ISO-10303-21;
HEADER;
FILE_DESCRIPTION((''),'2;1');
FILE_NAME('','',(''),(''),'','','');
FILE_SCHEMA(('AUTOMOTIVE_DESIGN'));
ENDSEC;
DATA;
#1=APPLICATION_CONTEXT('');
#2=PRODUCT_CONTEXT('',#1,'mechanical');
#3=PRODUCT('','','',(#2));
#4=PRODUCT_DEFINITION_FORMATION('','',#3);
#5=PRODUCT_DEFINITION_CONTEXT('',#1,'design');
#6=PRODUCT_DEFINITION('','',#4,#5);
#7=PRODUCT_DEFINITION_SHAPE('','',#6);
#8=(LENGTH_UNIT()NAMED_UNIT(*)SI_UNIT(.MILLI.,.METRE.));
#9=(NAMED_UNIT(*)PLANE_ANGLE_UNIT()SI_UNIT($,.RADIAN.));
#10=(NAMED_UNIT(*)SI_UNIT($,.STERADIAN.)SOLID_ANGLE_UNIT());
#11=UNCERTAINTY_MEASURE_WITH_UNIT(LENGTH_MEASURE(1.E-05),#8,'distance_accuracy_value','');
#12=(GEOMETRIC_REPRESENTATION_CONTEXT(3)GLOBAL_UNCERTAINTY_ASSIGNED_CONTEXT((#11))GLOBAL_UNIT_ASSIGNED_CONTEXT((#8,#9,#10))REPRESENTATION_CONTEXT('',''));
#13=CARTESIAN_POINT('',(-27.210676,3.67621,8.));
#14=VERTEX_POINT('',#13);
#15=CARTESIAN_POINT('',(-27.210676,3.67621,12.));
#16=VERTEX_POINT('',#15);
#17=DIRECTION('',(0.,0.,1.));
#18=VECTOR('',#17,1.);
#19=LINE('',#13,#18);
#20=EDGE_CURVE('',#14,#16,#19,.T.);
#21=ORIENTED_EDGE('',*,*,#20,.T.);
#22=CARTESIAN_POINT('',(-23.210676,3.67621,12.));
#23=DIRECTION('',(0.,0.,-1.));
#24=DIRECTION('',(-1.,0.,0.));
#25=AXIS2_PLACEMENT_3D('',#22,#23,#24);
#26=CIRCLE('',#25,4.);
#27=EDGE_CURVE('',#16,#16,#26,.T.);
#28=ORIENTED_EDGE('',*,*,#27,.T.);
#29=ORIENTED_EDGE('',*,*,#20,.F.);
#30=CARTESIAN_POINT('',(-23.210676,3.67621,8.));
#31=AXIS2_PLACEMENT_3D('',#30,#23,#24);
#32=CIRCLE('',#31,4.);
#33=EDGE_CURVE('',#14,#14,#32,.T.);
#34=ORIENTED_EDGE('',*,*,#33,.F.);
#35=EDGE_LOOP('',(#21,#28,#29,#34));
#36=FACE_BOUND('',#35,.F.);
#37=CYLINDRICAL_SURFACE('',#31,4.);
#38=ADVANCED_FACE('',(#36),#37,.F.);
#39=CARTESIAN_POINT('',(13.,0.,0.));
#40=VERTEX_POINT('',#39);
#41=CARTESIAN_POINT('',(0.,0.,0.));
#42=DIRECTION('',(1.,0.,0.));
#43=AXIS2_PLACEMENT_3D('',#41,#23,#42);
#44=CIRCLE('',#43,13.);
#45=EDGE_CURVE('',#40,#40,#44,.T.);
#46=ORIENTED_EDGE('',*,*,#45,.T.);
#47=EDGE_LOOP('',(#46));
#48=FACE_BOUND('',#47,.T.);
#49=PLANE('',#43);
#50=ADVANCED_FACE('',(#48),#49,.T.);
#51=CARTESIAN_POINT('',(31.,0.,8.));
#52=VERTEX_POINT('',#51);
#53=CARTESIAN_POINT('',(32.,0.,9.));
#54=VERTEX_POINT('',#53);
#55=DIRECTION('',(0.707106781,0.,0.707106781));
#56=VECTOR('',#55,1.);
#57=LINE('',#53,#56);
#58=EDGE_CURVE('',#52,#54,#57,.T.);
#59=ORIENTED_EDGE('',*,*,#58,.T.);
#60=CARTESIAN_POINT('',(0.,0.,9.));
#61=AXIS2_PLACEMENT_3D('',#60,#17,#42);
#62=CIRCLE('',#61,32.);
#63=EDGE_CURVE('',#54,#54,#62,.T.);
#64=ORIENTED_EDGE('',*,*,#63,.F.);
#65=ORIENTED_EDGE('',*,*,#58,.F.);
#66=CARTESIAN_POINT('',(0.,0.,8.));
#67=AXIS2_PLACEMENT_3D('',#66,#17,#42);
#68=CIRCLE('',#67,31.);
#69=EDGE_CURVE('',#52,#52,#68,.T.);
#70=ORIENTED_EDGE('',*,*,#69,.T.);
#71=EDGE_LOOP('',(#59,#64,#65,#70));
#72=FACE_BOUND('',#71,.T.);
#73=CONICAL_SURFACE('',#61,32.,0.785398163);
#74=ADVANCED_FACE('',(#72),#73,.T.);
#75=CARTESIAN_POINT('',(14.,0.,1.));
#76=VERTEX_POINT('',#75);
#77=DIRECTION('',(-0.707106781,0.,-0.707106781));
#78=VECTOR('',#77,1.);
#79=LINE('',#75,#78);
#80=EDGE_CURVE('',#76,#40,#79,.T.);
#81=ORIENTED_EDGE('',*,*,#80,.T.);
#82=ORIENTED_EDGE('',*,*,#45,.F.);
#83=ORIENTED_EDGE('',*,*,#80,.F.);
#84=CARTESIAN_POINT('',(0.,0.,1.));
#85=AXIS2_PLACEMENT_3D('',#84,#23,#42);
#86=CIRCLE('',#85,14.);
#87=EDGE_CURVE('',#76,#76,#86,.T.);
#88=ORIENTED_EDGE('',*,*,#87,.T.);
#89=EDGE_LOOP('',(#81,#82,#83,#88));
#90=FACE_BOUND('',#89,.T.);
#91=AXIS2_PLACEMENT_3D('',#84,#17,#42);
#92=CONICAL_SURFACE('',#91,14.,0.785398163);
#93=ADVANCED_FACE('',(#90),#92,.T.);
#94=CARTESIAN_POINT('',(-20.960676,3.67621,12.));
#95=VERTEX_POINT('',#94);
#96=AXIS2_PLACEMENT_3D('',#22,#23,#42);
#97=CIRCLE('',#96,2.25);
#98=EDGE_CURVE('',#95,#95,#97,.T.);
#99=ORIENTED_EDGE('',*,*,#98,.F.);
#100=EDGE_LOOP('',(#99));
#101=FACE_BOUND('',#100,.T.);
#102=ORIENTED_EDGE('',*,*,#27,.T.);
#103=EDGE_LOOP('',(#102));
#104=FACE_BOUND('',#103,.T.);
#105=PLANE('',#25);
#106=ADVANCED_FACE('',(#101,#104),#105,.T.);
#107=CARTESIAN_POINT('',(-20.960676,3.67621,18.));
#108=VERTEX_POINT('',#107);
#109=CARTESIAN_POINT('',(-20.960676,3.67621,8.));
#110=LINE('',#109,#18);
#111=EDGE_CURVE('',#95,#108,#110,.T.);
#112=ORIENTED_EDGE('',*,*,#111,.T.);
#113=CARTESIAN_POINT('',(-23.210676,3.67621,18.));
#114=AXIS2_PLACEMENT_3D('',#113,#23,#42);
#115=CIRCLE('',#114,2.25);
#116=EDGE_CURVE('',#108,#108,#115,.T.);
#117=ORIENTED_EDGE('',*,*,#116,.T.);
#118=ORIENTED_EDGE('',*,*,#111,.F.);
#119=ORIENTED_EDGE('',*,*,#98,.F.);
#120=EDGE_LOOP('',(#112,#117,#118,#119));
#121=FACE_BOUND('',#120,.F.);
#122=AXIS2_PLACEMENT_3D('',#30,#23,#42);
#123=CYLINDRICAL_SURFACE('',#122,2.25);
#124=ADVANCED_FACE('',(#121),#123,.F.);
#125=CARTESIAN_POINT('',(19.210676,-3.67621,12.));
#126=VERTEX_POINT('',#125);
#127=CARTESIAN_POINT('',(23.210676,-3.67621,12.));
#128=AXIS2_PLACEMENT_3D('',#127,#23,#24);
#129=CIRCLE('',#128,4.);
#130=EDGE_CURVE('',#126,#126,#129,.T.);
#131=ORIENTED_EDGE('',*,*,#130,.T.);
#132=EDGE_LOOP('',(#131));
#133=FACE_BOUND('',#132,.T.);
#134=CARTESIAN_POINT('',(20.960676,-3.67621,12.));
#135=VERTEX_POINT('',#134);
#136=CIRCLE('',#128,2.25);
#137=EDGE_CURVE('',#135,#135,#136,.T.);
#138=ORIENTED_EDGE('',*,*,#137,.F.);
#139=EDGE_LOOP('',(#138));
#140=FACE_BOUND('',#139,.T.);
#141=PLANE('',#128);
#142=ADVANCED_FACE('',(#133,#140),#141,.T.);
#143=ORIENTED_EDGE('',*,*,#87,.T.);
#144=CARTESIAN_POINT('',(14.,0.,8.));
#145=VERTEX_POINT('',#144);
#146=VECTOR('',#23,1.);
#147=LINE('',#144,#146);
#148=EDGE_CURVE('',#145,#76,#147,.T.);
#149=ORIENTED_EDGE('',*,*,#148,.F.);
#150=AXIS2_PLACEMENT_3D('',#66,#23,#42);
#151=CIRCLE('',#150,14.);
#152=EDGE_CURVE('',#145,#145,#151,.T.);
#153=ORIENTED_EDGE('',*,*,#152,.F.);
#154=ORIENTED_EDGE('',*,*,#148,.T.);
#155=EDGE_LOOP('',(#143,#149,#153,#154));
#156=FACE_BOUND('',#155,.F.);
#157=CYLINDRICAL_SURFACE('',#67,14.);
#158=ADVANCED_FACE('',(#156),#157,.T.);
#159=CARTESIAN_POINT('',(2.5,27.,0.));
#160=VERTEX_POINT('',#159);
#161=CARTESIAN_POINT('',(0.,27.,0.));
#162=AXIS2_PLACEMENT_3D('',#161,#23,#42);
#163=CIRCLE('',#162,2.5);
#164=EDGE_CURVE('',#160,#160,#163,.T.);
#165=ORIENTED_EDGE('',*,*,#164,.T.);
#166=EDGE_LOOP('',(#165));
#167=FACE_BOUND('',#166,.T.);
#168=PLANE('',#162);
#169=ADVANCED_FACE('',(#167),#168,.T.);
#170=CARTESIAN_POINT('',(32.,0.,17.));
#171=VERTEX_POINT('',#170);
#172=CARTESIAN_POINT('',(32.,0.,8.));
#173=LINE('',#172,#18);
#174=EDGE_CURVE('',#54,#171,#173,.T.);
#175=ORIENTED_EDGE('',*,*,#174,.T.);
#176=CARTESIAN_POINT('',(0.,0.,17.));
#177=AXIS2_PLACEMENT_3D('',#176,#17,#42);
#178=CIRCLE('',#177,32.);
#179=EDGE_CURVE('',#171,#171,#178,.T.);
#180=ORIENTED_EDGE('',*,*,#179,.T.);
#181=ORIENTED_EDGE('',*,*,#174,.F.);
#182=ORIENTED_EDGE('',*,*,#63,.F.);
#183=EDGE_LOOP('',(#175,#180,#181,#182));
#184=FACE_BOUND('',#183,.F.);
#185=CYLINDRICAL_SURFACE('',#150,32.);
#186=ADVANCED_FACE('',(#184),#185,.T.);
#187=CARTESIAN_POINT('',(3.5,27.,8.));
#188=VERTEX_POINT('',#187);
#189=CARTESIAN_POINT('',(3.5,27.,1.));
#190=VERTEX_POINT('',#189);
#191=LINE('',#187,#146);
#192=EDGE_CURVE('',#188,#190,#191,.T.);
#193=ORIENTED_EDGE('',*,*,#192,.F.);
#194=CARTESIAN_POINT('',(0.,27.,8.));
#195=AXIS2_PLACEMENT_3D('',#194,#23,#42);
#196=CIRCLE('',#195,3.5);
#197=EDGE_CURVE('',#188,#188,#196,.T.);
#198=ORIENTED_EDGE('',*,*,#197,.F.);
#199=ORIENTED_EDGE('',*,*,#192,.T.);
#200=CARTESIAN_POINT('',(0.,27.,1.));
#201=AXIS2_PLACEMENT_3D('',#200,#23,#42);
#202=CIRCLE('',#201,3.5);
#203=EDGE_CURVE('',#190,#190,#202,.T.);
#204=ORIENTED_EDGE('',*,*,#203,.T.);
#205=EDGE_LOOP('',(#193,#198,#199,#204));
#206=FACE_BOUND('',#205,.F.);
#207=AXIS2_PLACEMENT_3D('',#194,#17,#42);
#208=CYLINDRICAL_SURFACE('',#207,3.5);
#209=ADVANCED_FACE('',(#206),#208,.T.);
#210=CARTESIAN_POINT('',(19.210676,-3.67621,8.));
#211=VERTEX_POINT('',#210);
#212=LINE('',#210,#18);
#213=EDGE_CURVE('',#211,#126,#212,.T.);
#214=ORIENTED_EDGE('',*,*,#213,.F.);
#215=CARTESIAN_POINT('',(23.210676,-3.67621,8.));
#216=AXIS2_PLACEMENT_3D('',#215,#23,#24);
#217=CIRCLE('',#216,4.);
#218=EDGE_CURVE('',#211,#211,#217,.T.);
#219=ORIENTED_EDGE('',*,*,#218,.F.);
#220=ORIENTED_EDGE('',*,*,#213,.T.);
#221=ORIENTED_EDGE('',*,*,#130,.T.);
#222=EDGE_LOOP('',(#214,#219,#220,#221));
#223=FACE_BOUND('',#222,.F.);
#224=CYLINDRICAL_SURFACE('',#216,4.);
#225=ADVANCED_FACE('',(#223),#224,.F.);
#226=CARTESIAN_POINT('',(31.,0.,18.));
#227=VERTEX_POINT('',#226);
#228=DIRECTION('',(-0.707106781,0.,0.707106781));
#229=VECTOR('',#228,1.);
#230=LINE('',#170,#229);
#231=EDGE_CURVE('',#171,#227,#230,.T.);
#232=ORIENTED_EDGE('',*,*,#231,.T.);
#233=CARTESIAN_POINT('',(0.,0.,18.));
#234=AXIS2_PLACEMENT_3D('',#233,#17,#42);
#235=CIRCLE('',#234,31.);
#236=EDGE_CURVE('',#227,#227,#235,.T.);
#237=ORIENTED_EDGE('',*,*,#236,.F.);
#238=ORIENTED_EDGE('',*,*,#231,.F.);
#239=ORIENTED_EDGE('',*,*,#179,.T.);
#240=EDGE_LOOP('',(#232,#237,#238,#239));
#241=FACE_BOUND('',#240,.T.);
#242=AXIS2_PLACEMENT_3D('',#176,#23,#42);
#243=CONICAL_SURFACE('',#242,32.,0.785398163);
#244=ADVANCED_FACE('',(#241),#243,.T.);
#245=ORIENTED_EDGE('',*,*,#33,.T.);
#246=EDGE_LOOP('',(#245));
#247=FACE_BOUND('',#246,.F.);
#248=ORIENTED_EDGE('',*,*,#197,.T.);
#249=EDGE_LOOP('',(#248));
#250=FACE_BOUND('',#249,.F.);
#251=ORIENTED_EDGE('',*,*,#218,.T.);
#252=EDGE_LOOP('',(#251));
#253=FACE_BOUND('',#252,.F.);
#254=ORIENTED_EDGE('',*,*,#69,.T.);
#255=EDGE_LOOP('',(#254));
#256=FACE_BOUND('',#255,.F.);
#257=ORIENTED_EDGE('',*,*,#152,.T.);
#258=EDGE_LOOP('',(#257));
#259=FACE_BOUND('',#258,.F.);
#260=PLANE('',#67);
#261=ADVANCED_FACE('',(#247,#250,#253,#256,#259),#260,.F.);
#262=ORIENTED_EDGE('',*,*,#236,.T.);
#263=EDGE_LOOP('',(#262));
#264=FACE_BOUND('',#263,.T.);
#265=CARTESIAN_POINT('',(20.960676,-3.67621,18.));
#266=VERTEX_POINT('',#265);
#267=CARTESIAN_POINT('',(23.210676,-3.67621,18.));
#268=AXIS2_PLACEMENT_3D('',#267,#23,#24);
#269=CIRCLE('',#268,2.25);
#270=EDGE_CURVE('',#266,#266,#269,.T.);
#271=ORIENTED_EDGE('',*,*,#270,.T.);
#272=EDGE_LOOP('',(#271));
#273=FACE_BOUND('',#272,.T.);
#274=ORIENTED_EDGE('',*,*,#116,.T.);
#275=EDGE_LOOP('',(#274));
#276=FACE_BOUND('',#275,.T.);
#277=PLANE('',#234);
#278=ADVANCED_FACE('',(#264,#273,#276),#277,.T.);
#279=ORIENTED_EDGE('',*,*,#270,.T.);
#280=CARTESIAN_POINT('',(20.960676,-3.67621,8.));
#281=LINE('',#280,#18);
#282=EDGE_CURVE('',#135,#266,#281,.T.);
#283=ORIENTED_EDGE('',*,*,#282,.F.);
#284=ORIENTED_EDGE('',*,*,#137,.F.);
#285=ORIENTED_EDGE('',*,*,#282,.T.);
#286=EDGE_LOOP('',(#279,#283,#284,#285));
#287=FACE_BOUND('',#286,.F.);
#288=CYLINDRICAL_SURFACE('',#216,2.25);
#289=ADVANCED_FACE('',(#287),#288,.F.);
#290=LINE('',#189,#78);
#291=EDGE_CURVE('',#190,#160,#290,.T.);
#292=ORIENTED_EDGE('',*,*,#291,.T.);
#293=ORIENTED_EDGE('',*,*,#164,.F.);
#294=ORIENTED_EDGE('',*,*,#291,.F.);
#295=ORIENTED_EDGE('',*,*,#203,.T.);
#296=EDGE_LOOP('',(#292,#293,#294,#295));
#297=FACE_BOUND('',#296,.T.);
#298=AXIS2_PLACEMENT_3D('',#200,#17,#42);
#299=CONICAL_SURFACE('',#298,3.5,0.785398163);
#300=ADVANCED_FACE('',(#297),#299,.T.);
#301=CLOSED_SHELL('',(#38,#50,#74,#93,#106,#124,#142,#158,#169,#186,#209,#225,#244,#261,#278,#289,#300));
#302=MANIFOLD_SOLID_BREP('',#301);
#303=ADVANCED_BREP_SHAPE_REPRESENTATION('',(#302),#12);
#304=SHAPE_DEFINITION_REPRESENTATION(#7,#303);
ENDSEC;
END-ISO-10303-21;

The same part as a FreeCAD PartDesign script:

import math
import FreeCAD as App
import Part
import Sketcher
from FreeCAD import Vector
Q = App.Units.Quantity


def edges_at(feature, points):
    """Names of the edges that pass closest to the given points."""
    edges = feature.Shape.Edges
    near = lambda p: min(range(len(edges)), key=lambda i: edges[i].distToShape(Part.Vertex(*p))[0])
    return sorted({f"Edge{near(p) + 1}" for p in points})


def add_polygon(sketch, points):
    """Adds a closed chain of lines whose ends are joined by coincident constraints."""
    first, n = sketch.GeometryCount, len(points)
    for a, b in zip(points, points[1:] + points[:1]):
        sketch.addGeometry(Part.LineSegment(App.Vector(*a, 0), App.Vector(*b, 0)), False)
    for i in range(n):
        sketch.addConstraint(Sketcher.Constraint("Coincident", first + i, 2, first + (i + 1) % n, 1))

doc = App.newDocument("Part")
body = doc.addObject("PartDesign::Body", "Body")

# Sketch on XY plane
sketch1 = body.newObject("Sketcher::SketchObject", "Sketch")
sketch1.AttachmentSupport = (doc.getObject("XY_Plane"), [""])
sketch1.MapMode = "FlatFace"
sketch1.addGeometry([
    Part.LineSegment(Vector(-7.564716, 29.602896, 0), Vector(-11.5, 18.165902, 0)),  # 0
    Part.ArcOfCircle(Part.Circle(Vector(0, 0, 0), Vector(0, 0, 1), 21.5), math.radians(122.336026), math.radians(177.663974)),  # 1
    Part.LineSegment(Vector(-21.482133, 0.876341, 0), Vector(-29.419218, -8.250211, 0)),  # 2
    Part.ArcOfCircle(Part.Circle(Vector(-23.382686, -13.5, 0), Vector(0, 0, 1), 8), math.radians(138.987508), math.radians(281.012492)),  # 3
    Part.LineSegment(Vector(-21.854502, -21.352684, 0), Vector(-9.982133, -19.042243, 0)),  # 4
    Part.ArcOfCircle(Part.Circle(Vector(0, 0, 0), Vector(0, 0, 1), 21.5), math.radians(-117.663974), math.radians(-62.336026)),  # 5
    Part.LineSegment(Vector(9.982133, -19.042243, 0), Vector(21.854502, -21.352684, 0)),  # 6
    Part.ArcOfCircle(Part.Circle(Vector(23.382686, -13.5, 0), Vector(0, 0, 1), 8), math.radians(-101.012492), math.radians(41.012492)),  # 7
    Part.LineSegment(Vector(29.419218, -8.250211, 0), Vector(21.482133, 0.876341, 0)),  # 8
    Part.ArcOfCircle(Part.Circle(Vector(0, 0, 0), Vector(0, 0, 1), 21.5), math.radians(2.336026), math.radians(57.663974)),  # 9
    Part.LineSegment(Vector(11.5, 18.165902, 0), Vector(7.564716, 29.602896, 0)),  # 10
    Part.ArcOfCircle(Part.Circle(Vector(0, 27, 0), Vector(0, 0, 1), 8), math.radians(18.987508), math.radians(161.012492)),  # 11
    Part.Circle(Vector(23.382686, -13.5, 0), Vector(0, 0, 1), 3.5),  # 12
    Part.Circle(Vector(-23.382686, -13.5, 0), Vector(0, 0, 1), 3.5),  # 13
    Part.Circle(Vector(0, 27, 0), Vector(0, 0, 1), 3.5),  # 14
], False)
sketch1.addConstraint([
    Sketcher.Constraint("Coincident", 0, 2, 1, 1),
    Sketcher.Constraint("Coincident", 1, 2, 2, 1),
    Sketcher.Constraint("Tangent", 2, 2, 3, 1),
    Sketcher.Constraint("Tangent", 3, 2, 4, 1),
    Sketcher.Constraint("Coincident", 4, 2, 5, 1),
    Sketcher.Constraint("Coincident", 5, 2, 6, 1),
    Sketcher.Constraint("Tangent", 6, 2, 7, 1),
    Sketcher.Constraint("Tangent", 7, 2, 8, 1),
    Sketcher.Constraint("Coincident", 8, 2, 9, 1),
    Sketcher.Constraint("Coincident", 9, 2, 10, 1),
    Sketcher.Constraint("Tangent", 10, 2, 11, 1),
    Sketcher.Constraint("Tangent", 11, 2, 0, 1),
    Sketcher.Constraint("Coincident", 1, 3, -1, 1),
    Sketcher.Constraint("Coincident", 5, 3, -1, 1),
    Sketcher.Constraint("Coincident", 9, 3, -1, 1),
    Sketcher.Constraint("Coincident", 12, 3, 7, 3),
    Sketcher.Constraint("Coincident", 13, 3, 3, 3),
    Sketcher.Constraint("Coincident", 14, 3, 11, 3),
    Sketcher.Constraint("Equal", 1, 5),
    Sketcher.Constraint("Equal", 3, 7),
    Sketcher.Constraint("Equal", 5, 9),
    Sketcher.Constraint("Equal", 7, 11),
    Sketcher.Constraint("Equal", 12, 13),
    Sketcher.Constraint("Equal", 13, 14),
    Sketcher.Constraint("Symmetric", 3, 3, 7, 3, -2),
    Sketcher.Constraint("Symmetric", 10, 2, 11, 2, -2),
    Sketcher.Constraint("Horizontal", 4, 2, 5, 2),
    Sketcher.Constraint("Horizontal", 2, 2, 7, 2),
    Sketcher.Constraint("Equal", 0, 2),
    Sketcher.Constraint("Equal", 2, 4),
    Sketcher.Constraint("Diameter", 12, Q("7 mm")),
    Sketcher.Constraint("Radius", 3, Q("8 mm")),
    Sketcher.Constraint("Radius", 1, Q("21.5 mm")),
    Sketcher.Constraint("DistanceY", -1, 1, 11, 3, Q("27 mm")),
    Sketcher.Constraint("DistanceY", 3, 3, -1, 1, Q("13.5 mm")),
    Sketcher.Constraint("DistanceX", 0, 2, -1, 1, Q("11.5 mm")),
    Sketcher.Constraint("DistanceX", 3, 2, -1, 1, Q("21.854502 mm")),
])
pad1 = body.newObject("PartDesign::Pad", "Pad")
pad1.Profile = sketch1
pad1.Length = 5
doc.recompute()

fillet = body.newObject("PartDesign::Fillet", "Fillet")
fillet.Base = (pad1, edges_at(pad1, [
    (21.482, 0.876, 2.5),
    (9.982, -19.042, 2.5),
    (-9.982, -19.042, 2.5),
    (-21.482, 0.876, 2.5),
    (-11.5, 18.166, 2.5),
    (11.5, 18.166, 2.5),
]))
fillet.Radius = 10

# Sketch on XY plane
sketch2 = body.newObject("Sketcher::SketchObject", "Sketch001")
sketch2.AttachmentSupport = (doc.getObject("XY_Plane"), [""])
sketch2.MapMode = "FlatFace"
sketch2.AttachmentOffset = App.Placement(Vector(0, 0, 5), App.Rotation())
sketch2.addGeometry(Part.Circle(Vector(0, 0, 0), Vector(0, 0, 1), 18), False)
sketch2.addConstraint([
    Sketcher.Constraint("Coincident", 0, 3, -1, 1),
    Sketcher.Constraint("Diameter", 0, Q("36 mm")),
])
pad2 = body.newObject("PartDesign::Pad", "Pad001")
pad2.Profile = sketch2
pad2.Length = 3

# Sketch on XY plane
sketch3 = body.newObject("Sketcher::SketchObject", "Sketch002")
sketch3.AttachmentSupport = (doc.getObject("XY_Plane"), [""])
sketch3.MapMode = "FlatFace"
sketch3.AttachmentOffset = App.Placement(Vector(0, 0, 8), App.Rotation())
sketch3.addGeometry(Part.Circle(Vector(0, 0, 0), Vector(0, 0, 1), 14), False)
sketch3.addConstraint([
    Sketcher.Constraint("Coincident", 0, 3, -1, 1),
    Sketcher.Constraint("Diameter", 0, Q("28 mm")),
])
pocket1 = body.newObject("PartDesign::Pocket", "Pocket")
pocket1.Profile = sketch3
pocket1.Length = 32

# Sketch on XY plane
sketch4 = body.newObject("Sketcher::SketchObject", "Sketch003")
sketch4.AttachmentSupport = (doc.getObject("XY_Plane"), [""])
sketch4.MapMode = "FlatFace"
sketch4.addGeometry(Part.Circle(Vector(0, 0, 0), Vector(0, 0, 1), 16.75), False)
sketch4.addConstraint([
    Sketcher.Constraint("Coincident", 0, 3, -1, 1),
    Sketcher.Constraint("Diameter", 0, Q("33.5 mm")),
])
pocket2 = body.newObject("PartDesign::Pocket", "Pocket001")
pocket2.Profile = sketch4
pocket2.Length = 3
pocket2.Reversed = True
doc.recompute()

chamfer = body.newObject("PartDesign::Chamfer", "Chamfer")
chamfer.Base = (pocket2, edges_at(pocket2, [(-18, 0, 8)]))
chamfer.Size = 0.5

# Sketch on YZ plane
sketch5 = body.newObject("Sketcher::SketchObject", "Sketch004")
sketch5.AttachmentSupport = (doc.getObject("YZ_Plane"), [""])
sketch5.MapMode = "FlatFace"
add_polygon(sketch5, [(46.160438, 11.962172), (-27.817907, 11.962172), (-27.817907, -9.912328), (46.160438, -9.912328)])  # lines 0-3
sketch5.addConstraint([
    Sketcher.Constraint("Horizontal", 0),
    Sketcher.Constraint("Vertical", 1),
    Sketcher.Constraint("Horizontal", 2),
    Sketcher.Constraint("Vertical", 3),
    Sketcher.Constraint("DistanceY", 1, 2, 1, 1, Q("21.8745 mm")),
    Sketcher.Constraint("DistanceX", 0, 2, 0, 1, Q("73.978345 mm")),
    Sketcher.Constraint("DistanceY", -1, 1, 0, 2, Q("11.962172 mm")),
    Sketcher.Constraint("DistanceX", -1, 1, 2, 2, Q("46.160438 mm")),
])
pocket3 = body.newObject("PartDesign::Pocket", "Pocket002")
pocket3.Profile = sketch5
pocket3.Length = 125
pocket3.Midplane = True
body2 = doc.addObject("PartDesign::Body", "Body001")

# Sketch on XY plane
sketch6 = body2.newObject("Sketcher::SketchObject", "Sketch005")
sketch6.AttachmentSupport = (doc.getObject("XY_Plane001"), [""])
sketch6.MapMode = "FlatFace"
sketch6.AttachmentOffset = App.Placement(Vector(0, 0, 8), App.Rotation())
sketch6.addGeometry(Part.Circle(Vector(0, 0, 0), Vector(0, 0, 1), 32), False)
sketch6.addConstraint([
    Sketcher.Constraint("Coincident", 0, 3, -1, 1),
    Sketcher.Constraint("Diameter", 0, Q("64 mm")),
])
pad3 = body2.newObject("PartDesign::Pad", "Pad002")
pad3.Profile = sketch6
pad3.Length = 10

# Sketch on XY plane
sketch7 = body2.newObject("Sketcher::SketchObject", "Sketch006")
sketch7.AttachmentSupport = (doc.getObject("XY_Plane001"), [""])
sketch7.MapMode = "FlatFace"
sketch7.AttachmentOffset = App.Placement(Vector(0, 0, 8), App.Rotation())
sketch7.addGeometry([
    Part.Circle(Vector(0, 27, 0), Vector(0, 0, 1), 3.5),
    Part.Circle(Vector(0, 0, 0), Vector(0, 0, 1), 14),
], False)
sketch7.addConstraint([
    Sketcher.Constraint("Coincident", 1, 3, -1, 1),
    Sketcher.Constraint("PointOnObject", 0, 3, -2),
    Sketcher.Constraint("Diameter", 0, Q("7 mm")),
    Sketcher.Constraint("Diameter", 1, Q("28 mm")),
    Sketcher.Constraint("DistanceY", -1, 1, 0, 3, Q("27 mm")),
])
pad4 = body2.newObject("PartDesign::Pad", "Pad003")
pad4.Profile = sketch7
pad4.Length = 8
pad4.Reversed = True
doc.recompute()

chamfer2 = body2.newObject("PartDesign::Chamfer", "Chamfer001")
chamfer2.Base = (pad4, edges_at(pad4, [(-3.5, 27, 0), (-14, 0, 0)]))
chamfer2.Size = 1
doc.recompute()

chamfer3 = body2.newObject("PartDesign::Chamfer", "Chamfer002")
chamfer3.Base = (chamfer2, edges_at(chamfer2, [(-32, 0, 8), (-32, 0, 18)]))
chamfer3.Size = 1

# Sketch on XY plane
sketch8 = body2.newObject("Sketcher::SketchObject", "Sketch007")
sketch8.AttachmentSupport = (doc.getObject("XY_Plane001"), [""])
sketch8.MapMode = "FlatFace"
sketch8.AttachmentOffset = App.Placement(Vector(0, 0, 8), App.Rotation())
sketch8.addGeometry([
    Part.Circle(Vector(23.210676, -3.67621, 0), Vector(0, 0, 1), 2.25),
    Part.Circle(Vector(-23.210676, 3.67621, 0), Vector(0, 0, 1), 2.25),
], False)
sketch8.addConstraint([
    Sketcher.Constraint("Equal", 0, 1),
    Sketcher.Constraint("Symmetric", 0, 3, 1, 3, -1, 1),
    Sketcher.Constraint("Diameter", 0, Q("4.5 mm")),
    Sketcher.Constraint("DistanceY", 0, 3, -1, 1, Q("3.67621 mm")),
    Sketcher.Constraint("DistanceX", -1, 1, 0, 3, Q("23.210676 mm")),
])
pocket4 = body2.newObject("PartDesign::Pocket", "Pocket003")
pocket4.Profile = sketch8
pocket4.Length = 125
pocket4.Reversed = True

# Sketch on XY plane
sketch9 = body2.newObject("Sketcher::SketchObject", "Sketch008")
sketch9.AttachmentSupport = (doc.getObject("XY_Plane001"), [""])
sketch9.MapMode = "FlatFace"
sketch9.AttachmentOffset = App.Placement(Vector(0, 0, 8), App.Rotation())
sketch9.addGeometry([
    Part.Circle(Vector(23.210676, -3.67621, 0), Vector(0, 0, 1), 4),
    Part.Circle(Vector(-23.210676, 3.67621, 0), Vector(0, 0, 1), 4),
], False)
sketch9.addConstraint([
    Sketcher.Constraint("Equal", 0, 1),
    Sketcher.Constraint("Symmetric", 0, 3, 1, 3, -1, 1),
    Sketcher.Constraint("Diameter", 0, Q("8 mm")),
    Sketcher.Constraint("DistanceY", 0, 3, -1, 1, Q("3.67621 mm")),
    Sketcher.Constraint("DistanceX", -1, 1, 0, 3, Q("23.210676 mm")),
])
pocket5 = body2.newObject("PartDesign::Pocket", "Pocket004")
pocket5.Profile = sketch9
pocket5.Length = 4
pocket5.Reversed = True

doc.recompute()
